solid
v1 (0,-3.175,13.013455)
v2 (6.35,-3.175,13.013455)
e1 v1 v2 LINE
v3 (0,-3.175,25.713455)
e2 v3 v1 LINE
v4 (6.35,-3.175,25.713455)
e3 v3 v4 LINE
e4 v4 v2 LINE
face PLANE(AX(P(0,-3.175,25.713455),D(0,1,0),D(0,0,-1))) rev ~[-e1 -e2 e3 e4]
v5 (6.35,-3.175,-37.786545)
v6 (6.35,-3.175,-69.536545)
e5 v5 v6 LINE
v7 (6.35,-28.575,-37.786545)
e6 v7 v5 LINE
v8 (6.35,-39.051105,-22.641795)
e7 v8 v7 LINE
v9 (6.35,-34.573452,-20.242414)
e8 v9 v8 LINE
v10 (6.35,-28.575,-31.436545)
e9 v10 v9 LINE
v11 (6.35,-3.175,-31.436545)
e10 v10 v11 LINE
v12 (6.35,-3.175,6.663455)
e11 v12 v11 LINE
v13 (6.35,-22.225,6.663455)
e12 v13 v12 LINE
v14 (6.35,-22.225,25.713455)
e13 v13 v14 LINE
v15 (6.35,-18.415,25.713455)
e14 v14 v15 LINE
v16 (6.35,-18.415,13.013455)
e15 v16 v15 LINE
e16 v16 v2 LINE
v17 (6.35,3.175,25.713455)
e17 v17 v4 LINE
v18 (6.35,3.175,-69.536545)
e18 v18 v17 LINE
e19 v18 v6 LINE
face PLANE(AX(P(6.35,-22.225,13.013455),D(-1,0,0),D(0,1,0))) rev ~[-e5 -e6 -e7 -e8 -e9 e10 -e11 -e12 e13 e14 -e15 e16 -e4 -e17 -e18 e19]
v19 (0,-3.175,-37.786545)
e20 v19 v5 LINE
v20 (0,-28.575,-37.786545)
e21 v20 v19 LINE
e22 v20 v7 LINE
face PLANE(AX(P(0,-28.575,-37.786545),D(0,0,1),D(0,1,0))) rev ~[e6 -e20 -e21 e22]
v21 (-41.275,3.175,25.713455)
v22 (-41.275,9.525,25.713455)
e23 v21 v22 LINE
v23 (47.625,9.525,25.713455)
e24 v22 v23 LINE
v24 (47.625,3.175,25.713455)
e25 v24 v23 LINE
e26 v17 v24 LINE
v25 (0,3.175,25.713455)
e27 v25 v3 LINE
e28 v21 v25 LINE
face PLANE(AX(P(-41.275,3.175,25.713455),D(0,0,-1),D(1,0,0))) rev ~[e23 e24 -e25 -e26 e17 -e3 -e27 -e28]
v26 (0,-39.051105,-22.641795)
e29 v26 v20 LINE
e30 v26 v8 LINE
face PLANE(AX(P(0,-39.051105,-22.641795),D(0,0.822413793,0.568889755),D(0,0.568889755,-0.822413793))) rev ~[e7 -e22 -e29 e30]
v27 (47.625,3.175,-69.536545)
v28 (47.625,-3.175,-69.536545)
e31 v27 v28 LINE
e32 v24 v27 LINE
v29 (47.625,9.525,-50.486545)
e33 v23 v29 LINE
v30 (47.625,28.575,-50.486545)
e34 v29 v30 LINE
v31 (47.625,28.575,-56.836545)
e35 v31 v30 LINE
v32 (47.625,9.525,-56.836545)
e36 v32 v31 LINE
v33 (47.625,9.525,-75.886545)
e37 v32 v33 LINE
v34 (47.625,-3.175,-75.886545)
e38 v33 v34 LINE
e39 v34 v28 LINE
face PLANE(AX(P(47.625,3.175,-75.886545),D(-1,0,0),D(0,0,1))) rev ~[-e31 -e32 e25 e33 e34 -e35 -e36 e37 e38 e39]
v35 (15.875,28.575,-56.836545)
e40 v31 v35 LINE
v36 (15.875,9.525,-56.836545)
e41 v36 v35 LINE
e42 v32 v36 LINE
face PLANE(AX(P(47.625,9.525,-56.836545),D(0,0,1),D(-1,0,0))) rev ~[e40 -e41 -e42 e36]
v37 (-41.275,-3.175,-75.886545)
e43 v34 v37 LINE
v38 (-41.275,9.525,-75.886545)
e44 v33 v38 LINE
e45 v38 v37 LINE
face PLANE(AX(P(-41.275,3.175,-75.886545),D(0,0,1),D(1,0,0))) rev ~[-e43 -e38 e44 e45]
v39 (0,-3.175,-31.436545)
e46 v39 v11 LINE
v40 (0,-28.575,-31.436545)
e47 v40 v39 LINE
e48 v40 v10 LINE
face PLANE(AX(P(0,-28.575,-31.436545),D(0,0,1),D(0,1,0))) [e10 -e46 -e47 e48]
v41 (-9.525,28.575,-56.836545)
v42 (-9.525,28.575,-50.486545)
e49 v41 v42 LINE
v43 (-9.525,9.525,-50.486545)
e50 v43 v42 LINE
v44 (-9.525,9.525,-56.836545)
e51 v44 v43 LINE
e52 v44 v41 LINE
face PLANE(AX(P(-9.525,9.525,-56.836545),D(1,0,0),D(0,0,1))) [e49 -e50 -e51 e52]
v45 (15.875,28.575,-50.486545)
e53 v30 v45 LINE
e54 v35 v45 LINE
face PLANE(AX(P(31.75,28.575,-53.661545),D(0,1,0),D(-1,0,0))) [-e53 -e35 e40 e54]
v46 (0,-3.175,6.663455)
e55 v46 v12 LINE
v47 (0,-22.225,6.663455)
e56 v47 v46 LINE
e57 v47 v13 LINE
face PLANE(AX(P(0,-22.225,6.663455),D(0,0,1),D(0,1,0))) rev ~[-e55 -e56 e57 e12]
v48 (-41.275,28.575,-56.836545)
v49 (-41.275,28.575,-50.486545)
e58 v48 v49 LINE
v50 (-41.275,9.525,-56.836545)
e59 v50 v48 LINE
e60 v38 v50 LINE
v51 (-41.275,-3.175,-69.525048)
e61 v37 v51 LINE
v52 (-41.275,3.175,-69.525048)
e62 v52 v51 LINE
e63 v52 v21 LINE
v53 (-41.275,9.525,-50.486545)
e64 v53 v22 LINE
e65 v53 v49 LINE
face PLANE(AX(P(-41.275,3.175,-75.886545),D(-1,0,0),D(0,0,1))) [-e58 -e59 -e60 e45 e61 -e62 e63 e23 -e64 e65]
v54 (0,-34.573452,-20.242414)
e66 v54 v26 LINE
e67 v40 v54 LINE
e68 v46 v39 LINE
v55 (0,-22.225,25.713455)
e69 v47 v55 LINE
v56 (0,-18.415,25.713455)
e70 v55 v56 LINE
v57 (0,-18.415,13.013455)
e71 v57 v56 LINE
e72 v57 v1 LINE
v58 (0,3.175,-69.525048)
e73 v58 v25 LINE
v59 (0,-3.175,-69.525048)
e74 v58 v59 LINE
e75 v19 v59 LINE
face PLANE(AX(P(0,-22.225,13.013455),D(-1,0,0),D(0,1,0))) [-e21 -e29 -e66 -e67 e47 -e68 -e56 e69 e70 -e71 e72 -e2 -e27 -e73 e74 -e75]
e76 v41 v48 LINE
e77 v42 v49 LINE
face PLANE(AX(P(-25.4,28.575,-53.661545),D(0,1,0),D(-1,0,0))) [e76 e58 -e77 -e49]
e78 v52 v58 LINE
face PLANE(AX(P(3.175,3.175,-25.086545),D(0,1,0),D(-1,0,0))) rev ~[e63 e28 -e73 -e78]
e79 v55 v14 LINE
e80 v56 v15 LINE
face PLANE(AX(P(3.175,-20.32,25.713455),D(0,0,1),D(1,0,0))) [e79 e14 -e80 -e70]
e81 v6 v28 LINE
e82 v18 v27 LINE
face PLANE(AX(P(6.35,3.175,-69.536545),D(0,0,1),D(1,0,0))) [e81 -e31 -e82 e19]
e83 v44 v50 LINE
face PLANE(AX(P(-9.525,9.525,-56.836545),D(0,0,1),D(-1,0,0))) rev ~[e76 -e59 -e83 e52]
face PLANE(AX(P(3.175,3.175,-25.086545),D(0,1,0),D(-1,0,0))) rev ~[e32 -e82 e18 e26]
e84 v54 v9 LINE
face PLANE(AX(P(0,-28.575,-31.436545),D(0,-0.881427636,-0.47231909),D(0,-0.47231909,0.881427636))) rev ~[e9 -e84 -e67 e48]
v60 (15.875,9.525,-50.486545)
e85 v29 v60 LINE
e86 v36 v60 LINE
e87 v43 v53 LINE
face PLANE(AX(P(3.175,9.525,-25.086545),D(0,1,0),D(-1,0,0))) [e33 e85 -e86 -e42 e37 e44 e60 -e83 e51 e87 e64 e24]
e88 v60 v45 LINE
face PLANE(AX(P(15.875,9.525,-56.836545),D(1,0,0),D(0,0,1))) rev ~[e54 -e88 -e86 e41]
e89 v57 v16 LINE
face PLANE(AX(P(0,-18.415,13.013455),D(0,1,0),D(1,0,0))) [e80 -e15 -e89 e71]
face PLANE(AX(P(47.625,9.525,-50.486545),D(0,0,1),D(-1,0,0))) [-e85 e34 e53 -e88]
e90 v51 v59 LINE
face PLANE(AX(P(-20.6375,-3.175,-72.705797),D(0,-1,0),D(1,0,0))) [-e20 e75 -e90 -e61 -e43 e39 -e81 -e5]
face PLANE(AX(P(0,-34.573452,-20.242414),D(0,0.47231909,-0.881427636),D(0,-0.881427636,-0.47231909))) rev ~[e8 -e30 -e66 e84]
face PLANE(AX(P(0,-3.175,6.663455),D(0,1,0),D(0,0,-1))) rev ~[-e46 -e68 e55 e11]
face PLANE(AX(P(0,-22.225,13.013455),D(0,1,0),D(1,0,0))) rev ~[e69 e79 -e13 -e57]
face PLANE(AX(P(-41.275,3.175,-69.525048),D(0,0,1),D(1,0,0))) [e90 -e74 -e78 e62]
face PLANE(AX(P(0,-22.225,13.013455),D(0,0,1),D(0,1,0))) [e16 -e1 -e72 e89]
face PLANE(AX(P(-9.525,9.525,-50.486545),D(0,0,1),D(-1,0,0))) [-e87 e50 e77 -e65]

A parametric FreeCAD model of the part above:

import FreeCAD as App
import Part
import Sketcher
from FreeCAD import Vector
Q = App.Units.Quantity

doc = App.newDocument("Part")
params = doc.addObject("Spreadsheet::Sheet", "Params")
for row, (alias, value) in enumerate([
    ("sketch1_width", "1 in"),
    ("sketch1_height", "4 in"),
    ("sketch1_height2", "1.5 in"),
    ("sketch1_height3", "0.5 in"),
    ("sketch1_length", "0.5 in"),
    ("pad1_length", "0.25 in"),
    ("sketch2_height", "4 in"),
    ("sketch2_width", "3.5 in"),
    ("pad2_length", "0.25 in"),
    ("sketch3_width", "1.25 in"),
    ("sketch3_height", "0.25 in"),
    ("pad3_length", "0.75 in"),
    ("sketch4_height", "0.25 in"),
    ("sketch4_width", "1.625 in"),
    ("pad4_length", "0.25 in"),
    ("sketch5_width", "1.625 in"),
    ("pad5_length", "0.25 in"),
    ("sketch6_width", "0.25 in"),
    ("sketch6_height", "0.15 in"),
    ("pad6_length", "0.5 in"),
], start=1):
    params.set(f"A{row}", alias)
    params.set(f"B{row}", "=" + value)
    params.setAlias(f"B{row}", alias)

body = doc.addObject("PartDesign::Body", "Body")

# Sketch on YZ plane
sketch1 = body.newObject("Sketcher::SketchObject", "Sketch")
sketch1.AttachmentSupport = (doc.getObject("YZ_Plane"), [""])
sketch1.MapMode = "FlatFace"
sketch1.addGeometry(Part.LineSegment(Vector(-28.575, -31.436545, 0), Vector(-34.573452, -20.242414, 0)), False)
sketch1.addGeometry(Part.LineSegment(Vector(-34.573452, -20.242414, 0), Vector(-39.051105, -22.641795, 0)), False)
sketch1.addGeometry(Part.LineSegment(Vector(-39.051105, -22.641795, 0), Vector(-28.575, -37.786545, 0)), False)
sketch1.addGeometry(Part.LineSegment(Vector(-28.575, -37.786545, 0), Vector(-3.175, -37.786545, 0)), False)
sketch1.addGeometry(Part.LineSegment(Vector(-3.175, -37.786545, 0), Vector(-3.175, -75.886545, 0)), False)
sketch1.addGeometry(Part.LineSegment(Vector(-3.175, -75.886545, 0), Vector(3.175, -75.886545, 0)), False)
sketch1.addGeometry(Part.LineSegment(Vector(3.175, -75.886545, 0), Vector(3.175, 25.713455, 0)), False)
sketch1.addGeometry(Part.LineSegment(Vector(3.175, 25.713455, 0), Vector(-3.175, 25.713455, 0)), False)
sketch1.addGeometry(Part.LineSegment(Vector(-3.175, 25.713455, 0), Vector(-3.175, 13.013455, 0)), False)
sketch1.addGeometry(Part.LineSegment(Vector(-3.175, 13.013455, 0), Vector(-22.225, 13.013455, 0)), False)
sketch1.addGeometry(Part.LineSegment(Vector(-22.225, 13.013455, 0), Vector(-22.225, 6.663455, 0)), False)
sketch1.addGeometry(Part.LineSegment(Vector(-22.225, 6.663455, 0), Vector(-3.175, 6.663455, 0)), False)
sketch1.addGeometry(Part.LineSegment(Vector(-3.175, 6.663455, 0), Vector(-3.175, -31.436545, 0)), False)
sketch1.addGeometry(Part.LineSegment(Vector(-3.175, -31.436545, 0), Vector(-28.575, -31.436545, 0)), False)
sketch1.addConstraint(Sketcher.Constraint("Coincident", 0, 2, 1, 1))
sketch1.addConstraint(Sketcher.Constraint("Coincident", 1, 2, 2, 1))
sketch1.addConstraint(Sketcher.Constraint("Coincident", 2, 2, 3, 1))
sketch1.addConstraint(Sketcher.Constraint("Coincident", 3, 2, 4, 1))
sketch1.addConstraint(Sketcher.Constraint("Coincident", 4, 2, 5, 1))
sketch1.addConstraint(Sketcher.Constraint("Coincident", 5, 2, 6, 1))
sketch1.addConstraint(Sketcher.Constraint("Coincident", 6, 2, 7, 1))
sketch1.addConstraint(Sketcher.Constraint("Coincident", 7, 2, 8, 1))
sketch1.addConstraint(Sketcher.Constraint("Coincident", 8, 2, 9, 1))
sketch1.addConstraint(Sketcher.Constraint("Coincident", 9, 2, 10, 1))
sketch1.addConstraint(Sketcher.Constraint("Coincident", 10, 2, 11, 1))
sketch1.addConstraint(Sketcher.Constraint("Coincident", 11, 2, 12, 1))
sketch1.addConstraint(Sketcher.Constraint("Coincident", 12, 2, 13, 1))
sketch1.addConstraint(Sketcher.Constraint("Coincident", 13, 2, 0, 1))
sketch1.addConstraint(Sketcher.Constraint("Horizontal", 3))
sketch1.addConstraint(Sketcher.Constraint("Vertical", 4))
sketch1.addConstraint(Sketcher.Constraint("Horizontal", 5))
sketch1.addConstraint(Sketcher.Constraint("Vertical", 6))
sketch1.addConstraint(Sketcher.Constraint("Horizontal", 7))
sketch1.addConstraint(Sketcher.Constraint("Vertical", 8))
sketch1.addConstraint(Sketcher.Constraint("Horizontal", 9))
sketch1.addConstraint(Sketcher.Constraint("Vertical", 10))
sketch1.addConstraint(Sketcher.Constraint("Horizontal", 11))
sketch1.addConstraint(Sketcher.Constraint("Vertical", 12))
sketch1.addConstraint(Sketcher.Constraint("Horizontal", 13))
sketch1.addConstraint(Sketcher.Constraint("Perpendicular", 0, 1))
sketch1.addConstraint(Sketcher.Constraint("Vertical", 4, 2, 7, 2))
sketch1.addConstraint(Sketcher.Constraint("Vertical", 8, 2, 11, 2))
sketch1.addConstraint(Sketcher.Constraint("Vertical", 2, 2, 13, 2))
sketch1.addConstraint(Sketcher.Constraint("Equal", 7, 10))
sketch1.addConstraint(Sketcher.Constraint("Equal", 4, 12))
sketch1.addConstraint(Sketcher.Constraint("DistanceX", 3, 1, 3, 2, Q("1 in")))
sketch1.addConstraint(Sketcher.Constraint("DistanceY", 6, 1, 6, 2, Q("4 in")))
sketch1.addConstraint(Sketcher.Constraint("DistanceY", 4, 2, 4, 1, Q("1.5 in")))
sketch1.addConstraint(Sketcher.Constraint("DistanceY", 8, 2, 8, 1, Q("0.5 in")))
sketch1.addConstraint(Sketcher.Constraint("DistanceX", 9, 2, 6, 2, Q("1 in")))
sketch1.addConstraint(Sketcher.Constraint("Distance", 0, Q("0.5 in")))
sketch1.addConstraint(Sketcher.Constraint("Distance", 1, Q("0.2 in")))
sketch1.addConstraint(Sketcher.Constraint("DistanceX", 5, 1, 5, 2, Q("0.25 in")))
sketch1.addConstraint(Sketcher.Constraint("Distance", 2, Q("0.725 in")))
sketch1.addConstraint(Sketcher.Constraint("DistanceX", 2, 2, -1, 1, Q("1.125 in")))
sketch1.addConstraint(Sketcher.Constraint("DistanceY", 0, 2, -1, 1, 20.242414))
sketch1.setExpression("Constraints[31]", "Params.sketch1_width")
sketch1.setExpression("Constraints[32]", "Params.sketch1_height")
sketch1.setExpression("Constraints[33]", "Params.sketch1_height2")
sketch1.setExpression("Constraints[34]", "Params.sketch1_height3")
sketch1.setExpression("Constraints[36]", "Params.sketch1_length")
pad1 = body.newObject("PartDesign::Pad", "Pad")
pad1.Profile = sketch1
pad1.setExpression("Length", "Params.pad1_length")

# Sketch on XZ plane
sketch2 = body.newObject("Sketcher::SketchObject", "Sketch001")
sketch2.AttachmentSupport = (doc.getObject("XZ_Plane"), [""])
sketch2.MapMode = "FlatFace"
sketch2.AttachmentOffset = App.Placement(Vector(0, 0, -0.125 * 25.4), App.Rotation())
sketch2.addGeometry(Part.LineSegment(Vector(-41.275, 25.713455, 0), Vector(47.625, 25.713455, 0)), False)
sketch2.addGeometry(Part.LineSegment(Vector(47.625, 25.713455, 0), Vector(47.625, -75.886545, 0)), False)
sketch2.addGeometry(Part.LineSegment(Vector(47.625, -75.886545, 0), Vector(-41.275, -75.886545, 0)), False)
sketch2.addGeometry(Part.LineSegment(Vector(-41.275, -75.886545, 0), Vector(-41.275, 25.713455, 0)), False)
sketch2.addConstraint(Sketcher.Constraint("Coincident", 0, 2, 1, 1))
sketch2.addConstraint(Sketcher.Constraint("Coincident", 1, 2, 2, 1))
sketch2.addConstraint(Sketcher.Constraint("Coincident", 2, 2, 3, 1))
sketch2.addConstraint(Sketcher.Constraint("Coincident", 3, 2, 0, 1))
sketch2.addConstraint(Sketcher.Constraint("Horizontal", 0))
sketch2.addConstraint(Sketcher.Constraint("Vertical", 1))
sketch2.addConstraint(Sketcher.Constraint("Horizontal", 2))
sketch2.addConstraint(Sketcher.Constraint("Vertical", 3))
sketch2.addConstraint(Sketcher.Constraint("DistanceY", 1, 2, 1, 1, Q("4 in")))
sketch2.addConstraint(Sketcher.Constraint("DistanceX", 0, 1, 0, 2, Q("3.5 in")))
sketch2.addConstraint(Sketcher.Constraint("DistanceX", -1, 1, 0, 2, Q("1.875 in")))
sketch2.addConstraint(Sketcher.Constraint("DistanceY", -1, 1, 0, 2, 25.713455))
sketch2.setExpression("Constraints[8]", "Params.sketch2_height")
sketch2.setExpression("Constraints[9]", "Params.sketch2_width")
pad2 = body.newObject("PartDesign::Pad", "Pad001")
pad2.Profile = sketch2
pad2.setExpression("Length", "Params.pad2_length")
pad2.Reversed = True

# Sketch on XZ plane
sketch3 = body.newObject("Sketcher::SketchObject", "Sketch002")
sketch3.AttachmentSupport = (doc.getObject("XZ_Plane"), [""])
sketch3.MapMode = "FlatFace"
sketch3.AttachmentOffset = App.Placement(Vector(0, 0, -0.375 * 25.4), App.Rotation())
sketch3.addGeometry(Part.LineSegment(Vector(47.625, -50.486545, 0), Vector(47.625, -56.836545, 0)), False)
sketch3.addGeometry(Part.LineSegment(Vector(47.625, -56.836545, 0), Vector(15.875, -56.836545, 0)), False)
sketch3.addGeometry(Part.LineSegment(Vector(15.875, -56.836545, 0), Vector(15.875, -50.486545, 0)), False)
sketch3.addGeometry(Part.LineSegment(Vector(15.875, -50.486545, 0), Vector(47.625, -50.486545, 0)), False)
sketch3.addGeometry(Part.LineSegment(Vector(-9.525, -50.486545, 0), Vector(-9.525, -56.836545, 0)), False)
sketch3.addGeometry(Part.LineSegment(Vector(-9.525, -56.836545, 0), Vector(-41.275, -56.836545, 0)), False)
sketch3.addGeometry(Part.LineSegment(Vector(-41.275, -56.836545, 0), Vector(-41.275, -50.486545, 0)), False)
sketch3.addGeometry(Part.LineSegment(Vector(-41.275, -50.486545, 0), Vector(-9.525, -50.486545, 0)), False)
sketch3.addConstraint(Sketcher.Constraint("Coincident", 0, 2, 1, 1))
sketch3.addConstraint(Sketcher.Constraint("Coincident", 1, 2, 2, 1))
sketch3.addConstraint(Sketcher.Constraint("Coincident", 2, 2, 3, 1))
sketch3.addConstraint(Sketcher.Constraint("Coincident", 3, 2, 0, 1))
sketch3.addConstraint(Sketcher.Constraint("Coincident", 4, 2, 5, 1))
sketch3.addConstraint(Sketcher.Constraint("Coincident", 5, 2, 6, 1))
sketch3.addConstraint(Sketcher.Constraint("Coincident", 6, 2, 7, 1))
sketch3.addConstraint(Sketcher.Constraint("Coincident", 7, 2, 4, 1))
sketch3.addConstraint(Sketcher.Constraint("Vertical", 0))
sketch3.addConstraint(Sketcher.Constraint("Horizontal", 1))
sketch3.addConstraint(Sketcher.Constraint("Vertical", 2))
sketch3.addConstraint(Sketcher.Constraint("Horizontal", 3))
sketch3.addConstraint(Sketcher.Constraint("Vertical", 4))
sketch3.addConstraint(Sketcher.Constraint("Horizontal", 5))
sketch3.addConstraint(Sketcher.Constraint("Vertical", 6))
sketch3.addConstraint(Sketcher.Constraint("Horizontal", 7))
sketch3.addConstraint(Sketcher.Constraint("Horizontal", 1, 2, 4, 2))
sketch3.addConstraint(Sketcher.Constraint("Horizontal", 3, 2, 6, 2))
sketch3.addConstraint(Sketcher.Constraint("Equal", 3, 5))
sketch3.addConstraint(Sketcher.Constraint("DistanceX", 4, 2, 1, 2, Q("1 in")))
sketch3.addConstraint(Sketcher.Constraint("DistanceX", 1, 2, 1, 1, Q("1.25 in")))
sketch3.addConstraint(Sketcher.Constraint("DistanceY", 0, 2, 0, 1, Q("0.25 in")))
sketch3.addConstraint(Sketcher.Constraint("DistanceX", -1, 1, 0, 2, Q("1.875 in")))
sketch3.addConstraint(Sketcher.Constraint("DistanceY", 0, 2, -1, 1, 56.836545))
sketch3.setExpression("Constraints[20]", "Params.sketch3_width")
sketch3.setExpression("Constraints[21]", "Params.sketch3_height")
pad3 = body.newObject("PartDesign::Pad", "Pad002")
pad3.Profile = sketch3
pad3.setExpression("Length", "Params.pad3_length")
pad3.Reversed = True

# Sketch on XZ plane
sketch4 = body.newObject("Sketcher::SketchObject", "Sketch003")
sketch4.AttachmentSupport = (doc.getObject("XZ_Plane"), [""])
sketch4.MapMode = "FlatFace"
sketch4.AttachmentOffset = App.Placement(Vector(0, 0, -0.125 * 25.4), App.Rotation())
sketch4.addGeometry(Part.LineSegment(Vector(6.35, -69.536545, 0), Vector(6.35, -75.886545, 0)), False)
sketch4.addGeometry(Part.LineSegment(Vector(6.35, -75.886545, 0), Vector(47.625, -75.886545, 0)), False)
sketch4.addGeometry(Part.LineSegment(Vector(47.625, -75.886545, 0), Vector(47.625, -69.536545, 0)), False)
sketch4.addGeometry(Part.LineSegment(Vector(47.625, -69.536545, 0), Vector(6.35, -69.536545, 0)), False)
sketch4.addConstraint(Sketcher.Constraint("Coincident", 0, 2, 1, 1))
sketch4.addConstraint(Sketcher.Constraint("Coincident", 1, 2, 2, 1))
sketch4.addConstraint(Sketcher.Constraint("Coincident", 2, 2, 3, 1))
sketch4.addConstraint(Sketcher.Constraint("Coincident", 3, 2, 0, 1))
sketch4.addConstraint(Sketcher.Constraint("Vertical", 0))
sketch4.addConstraint(Sketcher.Constraint("Horizontal", 1))
sketch4.addConstraint(Sketcher.Constraint("Vertical", 2))
sketch4.addConstraint(Sketcher.Constraint("Horizontal", 3))
sketch4.addConstraint(Sketcher.Constraint("DistanceY", 0, 2, 0, 1, Q("0.25 in")))
sketch4.addConstraint(Sketcher.Constraint("DistanceX", 1, 1, 1, 2, Q("1.625 in")))
sketch4.addConstraint(Sketcher.Constraint("DistanceX", -1, 1, 0, 2, Q("0.25 in")))
sketch4.addConstraint(Sketcher.Constraint("DistanceY", 0, 2, -1, 1, 75.886545))
sketch4.setExpression("Constraints[8]", "Params.sketch4_height")
sketch4.setExpression("Constraints[9]", "Params.sketch4_width")
pad4 = body.newObject("PartDesign::Pad", "Pad003")
pad4.Profile = sketch4
pad4.setExpression("Length", "Params.pad4_length")

# Sketch on XZ plane
sketch5 = body.newObject("Sketcher::SketchObject", "Sketch004")
sketch5.AttachmentSupport = (doc.getObject("XZ_Plane"), [""])
sketch5.MapMode = "FlatFace"
sketch5.AttachmentOffset = App.Placement(Vector(0, 0, -0.125 * 25.4), App.Rotation())
sketch5.addGeometry(Part.LineSegment(Vector(-41.275, -69.525048, 0), Vector(-41.275, -75.886545, 0)), False)
sketch5.addGeometry(Part.LineSegment(Vector(-41.275, -75.886545, 0), Vector(0, -75.886545, 0)), False)
sketch5.addGeometry(Part.LineSegment(Vector(0, -75.886545, 0), Vector(0, -69.525048, 0)), False)
sketch5.addGeometry(Part.LineSegment(Vector(0, -69.525048, 0), Vector(-41.275, -69.525048, 0)), False)
sketch5.addConstraint(Sketcher.Constraint("Coincident", 0, 2, 1, 1))
sketch5.addConstraint(Sketcher.Constraint("Coincident", 1, 2, 2, 1))
sketch5.addConstraint(Sketcher.Constraint("Coincident", 2, 2, 3, 1))
sketch5.addConstraint(Sketcher.Constraint("Coincident", 3, 2, 0, 1))
sketch5.addConstraint(Sketcher.Constraint("Vertical", 0))
sketch5.addConstraint(Sketcher.Constraint("Horizontal", 1))
sketch5.addConstraint(Sketcher.Constraint("Vertical", 2))
sketch5.addConstraint(Sketcher.Constraint("Horizontal", 3))
sketch5.addConstraint(Sketcher.Constraint("PointOnObject", 1, 2, -2))
sketch5.addConstraint(Sketcher.Constraint("DistanceX", 1, 1, 1, 2, Q("1.625 in")))
sketch5.addConstraint(Sketcher.Constraint("DistanceY", 0, 2, 0, 1, 6.361497))
sketch5.addConstraint(Sketcher.Constraint("DistanceY", 2, 2, -1, 1, 69.525048))
sketch5.setExpression("Constraints[9]", "Params.sketch5_width")
pad5 = body.newObject("PartDesign::Pad", "Pad004")
pad5.Profile = sketch5
pad5.setExpression("Length", "Params.pad5_length")

# Sketch on XY plane
sketch6 = body.newObject("Sketcher::SketchObject", "Sketch005")
sketch6.AttachmentSupport = (doc.getObject("XY_Plane"), [""])
sketch6.MapMode = "FlatFace"
sketch6.AttachmentOffset = App.Placement(Vector(0, 0, 13.013455), App.Rotation())
sketch6.addGeometry(Part.LineSegment(Vector(0, -18.415, 0), Vector(0, -22.225, 0)), False)
sketch6.addGeometry(Part.LineSegment(Vector(0, -22.225, 0), Vector(6.35, -22.225, 0)), False)
sketch6.addGeometry(Part.LineSegment(Vector(6.35, -22.225, 0), Vector(6.35, -18.415, 0)), False)
sketch6.addGeometry(Part.LineSegment(Vector(6.35, -18.415, 0), Vector(0, -18.415, 0)), False)
sketch6.addConstraint(Sketcher.Constraint("Coincident", 0, 2, 1, 1))
sketch6.addConstraint(Sketcher.Constraint("Coincident", 1, 2, 2, 1))
sketch6.addConstraint(Sketcher.Constraint("Coincident", 2, 2, 3, 1))
sketch6.addConstraint(Sketcher.Constraint("Coincident", 3, 2, 0, 1))
sketch6.addConstraint(Sketcher.Constraint("Vertical", 0))
sketch6.addConstraint(Sketcher.Constraint("Horizontal", 1))
sketch6.addConstraint(Sketcher.Constraint("Vertical", 2))
sketch6.addConstraint(Sketcher.Constraint("Horizontal", 3))
sketch6.addConstraint(Sketcher.Constraint("PointOnObject", 0, 2, -2))
sketch6.addConstraint(Sketcher.Constraint("DistanceX", 1, 1, 1, 2, Q("0.25 in")))
sketch6.addConstraint(Sketcher.Constraint("DistanceY", 0, 2, 0, 1, Q("0.15 in")))
sketch6.addConstraint(Sketcher.Constraint("DistanceY", 0, 2, -1, 1, Q("0.875 in")))
sketch6.setExpression("Constraints[9]", "Params.sketch6_width")
sketch6.setExpression("Constraints[10]", "Params.sketch6_height")
pad6 = body.newObject("PartDesign::Pad", "Pad005")
pad6.Profile = sketch6
pad6.setExpression("Length", "Params.pad6_length")

doc.recompute()
